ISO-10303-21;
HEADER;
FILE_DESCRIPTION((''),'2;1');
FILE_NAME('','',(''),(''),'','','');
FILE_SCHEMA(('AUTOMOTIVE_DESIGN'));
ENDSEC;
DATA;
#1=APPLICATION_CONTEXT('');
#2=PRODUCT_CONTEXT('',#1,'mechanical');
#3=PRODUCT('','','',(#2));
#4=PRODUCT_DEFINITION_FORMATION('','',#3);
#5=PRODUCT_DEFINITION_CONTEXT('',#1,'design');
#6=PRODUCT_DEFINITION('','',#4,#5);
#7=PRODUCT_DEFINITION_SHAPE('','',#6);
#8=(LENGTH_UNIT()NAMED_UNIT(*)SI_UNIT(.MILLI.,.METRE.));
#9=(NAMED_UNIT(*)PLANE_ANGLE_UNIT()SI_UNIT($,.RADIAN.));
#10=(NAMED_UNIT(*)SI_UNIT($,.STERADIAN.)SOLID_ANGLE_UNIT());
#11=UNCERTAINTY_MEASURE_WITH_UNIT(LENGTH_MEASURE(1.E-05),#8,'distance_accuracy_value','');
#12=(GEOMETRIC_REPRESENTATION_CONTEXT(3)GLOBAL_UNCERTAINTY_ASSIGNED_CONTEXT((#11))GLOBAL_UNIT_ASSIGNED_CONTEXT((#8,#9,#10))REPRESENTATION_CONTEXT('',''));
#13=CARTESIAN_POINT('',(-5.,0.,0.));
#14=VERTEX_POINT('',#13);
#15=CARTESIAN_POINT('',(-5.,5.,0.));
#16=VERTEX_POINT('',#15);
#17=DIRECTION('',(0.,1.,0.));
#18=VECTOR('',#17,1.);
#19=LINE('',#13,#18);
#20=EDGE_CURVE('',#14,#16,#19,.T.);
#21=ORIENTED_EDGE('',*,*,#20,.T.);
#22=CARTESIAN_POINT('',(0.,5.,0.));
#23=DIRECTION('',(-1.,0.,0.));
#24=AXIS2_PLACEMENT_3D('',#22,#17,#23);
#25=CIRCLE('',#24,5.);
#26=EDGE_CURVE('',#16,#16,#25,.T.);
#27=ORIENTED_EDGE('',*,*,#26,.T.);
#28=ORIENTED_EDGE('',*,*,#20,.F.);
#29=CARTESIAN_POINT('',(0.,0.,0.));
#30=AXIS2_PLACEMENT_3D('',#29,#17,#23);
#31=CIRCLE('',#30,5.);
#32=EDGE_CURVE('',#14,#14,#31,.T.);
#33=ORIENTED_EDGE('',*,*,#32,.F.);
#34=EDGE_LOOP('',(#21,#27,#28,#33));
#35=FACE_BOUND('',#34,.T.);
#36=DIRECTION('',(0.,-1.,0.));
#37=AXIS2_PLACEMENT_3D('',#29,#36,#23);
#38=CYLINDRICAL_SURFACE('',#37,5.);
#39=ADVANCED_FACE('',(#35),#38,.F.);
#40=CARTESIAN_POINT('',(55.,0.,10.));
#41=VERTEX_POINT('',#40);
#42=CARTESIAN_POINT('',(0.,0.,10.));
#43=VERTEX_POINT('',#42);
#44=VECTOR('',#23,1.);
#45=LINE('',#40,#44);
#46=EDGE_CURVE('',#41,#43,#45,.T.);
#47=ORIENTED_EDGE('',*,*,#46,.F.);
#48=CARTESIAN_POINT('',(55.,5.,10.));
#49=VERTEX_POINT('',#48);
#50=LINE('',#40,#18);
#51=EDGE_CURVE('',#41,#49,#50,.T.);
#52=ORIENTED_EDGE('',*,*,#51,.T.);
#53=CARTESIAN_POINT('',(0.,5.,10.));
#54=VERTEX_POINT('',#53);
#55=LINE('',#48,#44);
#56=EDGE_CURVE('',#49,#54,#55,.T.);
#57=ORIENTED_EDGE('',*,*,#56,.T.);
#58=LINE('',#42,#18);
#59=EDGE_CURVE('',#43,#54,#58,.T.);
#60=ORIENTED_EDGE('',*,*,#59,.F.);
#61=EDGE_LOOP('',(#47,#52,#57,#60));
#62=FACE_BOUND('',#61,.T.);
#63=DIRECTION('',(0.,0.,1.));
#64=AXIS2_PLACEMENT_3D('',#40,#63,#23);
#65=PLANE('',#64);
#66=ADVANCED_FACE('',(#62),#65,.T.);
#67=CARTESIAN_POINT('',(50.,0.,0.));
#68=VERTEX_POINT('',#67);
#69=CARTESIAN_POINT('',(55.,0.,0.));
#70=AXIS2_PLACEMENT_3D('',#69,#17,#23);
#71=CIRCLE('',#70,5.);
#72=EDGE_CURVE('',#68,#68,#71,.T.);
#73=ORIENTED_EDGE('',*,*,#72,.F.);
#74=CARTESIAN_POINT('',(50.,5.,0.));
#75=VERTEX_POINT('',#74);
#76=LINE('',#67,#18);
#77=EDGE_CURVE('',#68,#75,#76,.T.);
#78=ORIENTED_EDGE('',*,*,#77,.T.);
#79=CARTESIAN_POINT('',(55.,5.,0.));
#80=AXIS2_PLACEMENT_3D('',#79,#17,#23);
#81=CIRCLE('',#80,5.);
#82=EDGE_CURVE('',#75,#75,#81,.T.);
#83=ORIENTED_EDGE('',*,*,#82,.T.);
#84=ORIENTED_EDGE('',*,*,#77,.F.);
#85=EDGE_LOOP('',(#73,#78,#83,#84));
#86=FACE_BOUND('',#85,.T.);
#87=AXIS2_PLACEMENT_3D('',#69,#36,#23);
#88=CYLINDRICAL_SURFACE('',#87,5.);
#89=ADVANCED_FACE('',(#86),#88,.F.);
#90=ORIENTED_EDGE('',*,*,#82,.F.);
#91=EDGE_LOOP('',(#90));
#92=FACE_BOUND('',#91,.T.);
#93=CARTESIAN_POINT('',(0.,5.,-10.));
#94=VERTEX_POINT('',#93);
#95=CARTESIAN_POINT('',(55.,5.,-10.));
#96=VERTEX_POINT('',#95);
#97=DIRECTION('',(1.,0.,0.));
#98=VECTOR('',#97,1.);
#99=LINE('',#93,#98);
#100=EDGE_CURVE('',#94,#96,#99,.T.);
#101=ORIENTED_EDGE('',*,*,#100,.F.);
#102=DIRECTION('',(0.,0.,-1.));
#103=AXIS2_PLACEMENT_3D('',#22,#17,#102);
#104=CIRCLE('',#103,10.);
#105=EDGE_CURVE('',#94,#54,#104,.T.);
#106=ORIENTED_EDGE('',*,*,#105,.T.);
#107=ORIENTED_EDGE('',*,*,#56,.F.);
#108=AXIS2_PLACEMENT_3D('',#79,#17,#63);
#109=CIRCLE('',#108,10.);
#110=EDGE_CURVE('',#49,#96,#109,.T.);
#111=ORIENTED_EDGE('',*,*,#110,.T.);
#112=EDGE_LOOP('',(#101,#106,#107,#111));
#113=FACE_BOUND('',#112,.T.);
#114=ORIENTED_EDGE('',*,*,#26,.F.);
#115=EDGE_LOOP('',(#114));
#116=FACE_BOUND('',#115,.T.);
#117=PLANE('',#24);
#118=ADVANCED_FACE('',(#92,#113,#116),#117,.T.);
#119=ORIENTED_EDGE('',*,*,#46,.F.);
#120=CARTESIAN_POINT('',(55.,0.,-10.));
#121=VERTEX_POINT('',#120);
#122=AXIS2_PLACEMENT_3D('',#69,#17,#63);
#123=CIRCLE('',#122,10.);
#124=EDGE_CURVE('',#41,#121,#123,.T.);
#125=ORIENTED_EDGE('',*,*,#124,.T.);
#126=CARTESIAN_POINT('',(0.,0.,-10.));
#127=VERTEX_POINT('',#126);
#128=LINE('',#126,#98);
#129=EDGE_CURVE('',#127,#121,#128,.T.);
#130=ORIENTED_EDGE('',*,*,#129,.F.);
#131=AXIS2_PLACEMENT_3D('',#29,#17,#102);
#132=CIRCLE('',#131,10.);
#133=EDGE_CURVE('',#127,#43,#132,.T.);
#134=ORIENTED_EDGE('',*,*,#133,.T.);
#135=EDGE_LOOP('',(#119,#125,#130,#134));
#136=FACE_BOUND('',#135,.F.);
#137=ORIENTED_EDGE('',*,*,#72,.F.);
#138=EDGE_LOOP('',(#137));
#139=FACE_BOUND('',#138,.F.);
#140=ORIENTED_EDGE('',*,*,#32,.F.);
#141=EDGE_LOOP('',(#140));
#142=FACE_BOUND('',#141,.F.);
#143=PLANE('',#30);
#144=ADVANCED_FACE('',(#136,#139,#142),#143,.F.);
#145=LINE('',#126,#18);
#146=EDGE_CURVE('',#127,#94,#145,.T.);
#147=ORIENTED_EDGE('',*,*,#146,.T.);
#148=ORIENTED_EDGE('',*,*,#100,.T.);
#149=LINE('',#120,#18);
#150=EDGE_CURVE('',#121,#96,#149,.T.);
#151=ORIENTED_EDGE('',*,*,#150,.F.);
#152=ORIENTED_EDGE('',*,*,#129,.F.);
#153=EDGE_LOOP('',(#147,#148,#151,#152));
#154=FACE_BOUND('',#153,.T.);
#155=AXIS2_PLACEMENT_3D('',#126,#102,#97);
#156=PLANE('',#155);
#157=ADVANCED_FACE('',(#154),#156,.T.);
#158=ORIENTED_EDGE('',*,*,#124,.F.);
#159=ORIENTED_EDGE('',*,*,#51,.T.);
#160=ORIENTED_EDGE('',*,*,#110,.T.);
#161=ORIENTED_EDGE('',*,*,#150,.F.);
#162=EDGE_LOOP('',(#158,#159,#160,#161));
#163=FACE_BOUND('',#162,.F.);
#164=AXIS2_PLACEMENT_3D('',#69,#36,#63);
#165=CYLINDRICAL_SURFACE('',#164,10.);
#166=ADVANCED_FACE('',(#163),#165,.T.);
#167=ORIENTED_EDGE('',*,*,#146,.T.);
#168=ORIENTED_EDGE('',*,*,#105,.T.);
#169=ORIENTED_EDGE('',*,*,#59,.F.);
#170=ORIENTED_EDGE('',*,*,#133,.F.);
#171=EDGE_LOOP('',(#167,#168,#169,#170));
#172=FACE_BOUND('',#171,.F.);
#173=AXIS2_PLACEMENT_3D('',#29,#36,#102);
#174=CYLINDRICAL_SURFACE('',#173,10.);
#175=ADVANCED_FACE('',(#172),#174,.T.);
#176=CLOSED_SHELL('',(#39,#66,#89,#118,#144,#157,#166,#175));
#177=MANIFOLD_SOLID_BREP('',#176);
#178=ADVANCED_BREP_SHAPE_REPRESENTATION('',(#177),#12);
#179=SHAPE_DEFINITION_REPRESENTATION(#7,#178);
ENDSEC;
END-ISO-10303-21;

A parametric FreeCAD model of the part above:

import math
import FreeCAD as App
import Part
import Sketcher
Q = App.Units.Quantity

doc = App.newDocument("Part")
body = doc.addObject("PartDesign::Body", "Body")

sketch1 = body.newObject("Sketcher::SketchObject", "Sketch")
sketch1.AttachmentSupport = (doc.getObject("XZ_Plane"), [""])
sketch1.MapMode = "FlatFace"
sketch1.addGeometry([
    Part.LineSegment(App.Vector(0, 10, 0), App.Vector(55, 10, 0)),
    Part.ArcOfCircle(Part.Circle(App.Vector(55, 0, 0), App.Vector(0, 0, 1), 10), math.radians(-90), math.radians(90)),
    Part.LineSegment(App.Vector(55, -10, 0), App.Vector(0, -10, 0)),
    Part.ArcOfCircle(Part.Circle(App.Vector(0, 0, 0), App.Vector(0, 0, 1), 10), math.radians(90), math.radians(270)),
    Part.Circle(App.Vector(55, 0, 0), App.Vector(0, 0, 1), 5),
    Part.Circle(App.Vector(0, 0, 0), App.Vector(0, 0, 1), 5),
], False)
sketch1.addConstraint([
    Sketcher.Constraint("Tangent", 0, 2, 1, 2),
    Sketcher.Constraint("Tangent", 1, 1, 2, 1),
    Sketcher.Constraint("Tangent", 2, 2, 3, 2),
    Sketcher.Constraint("Tangent", 3, 1, 0, 1),
    Sketcher.Constraint("Horizontal", 0),
    Sketcher.Constraint("Horizontal", 2),
    Sketcher.Constraint("Coincident", 3, 3, -1, 1),
    Sketcher.Constraint("Coincident", 5, 3, -1, 1),
    Sketcher.Constraint("Coincident", 4, 3, 1, 3),
    Sketcher.Constraint("Equal", 4, 5),
    Sketcher.Constraint("Diameter", 4, Q("10 mm")),
    Sketcher.Constraint("Radius", 1, Q("10 mm")),
    Sketcher.Constraint("DistanceX", 0, 1, 0, 2, Q("55 mm")),
])
pad1 = body.newObject("PartDesign::Pad", "Pad")
pad1.Profile = sketch1
pad1.Length = 5
pad1.Reversed = True

doc.recompute()
